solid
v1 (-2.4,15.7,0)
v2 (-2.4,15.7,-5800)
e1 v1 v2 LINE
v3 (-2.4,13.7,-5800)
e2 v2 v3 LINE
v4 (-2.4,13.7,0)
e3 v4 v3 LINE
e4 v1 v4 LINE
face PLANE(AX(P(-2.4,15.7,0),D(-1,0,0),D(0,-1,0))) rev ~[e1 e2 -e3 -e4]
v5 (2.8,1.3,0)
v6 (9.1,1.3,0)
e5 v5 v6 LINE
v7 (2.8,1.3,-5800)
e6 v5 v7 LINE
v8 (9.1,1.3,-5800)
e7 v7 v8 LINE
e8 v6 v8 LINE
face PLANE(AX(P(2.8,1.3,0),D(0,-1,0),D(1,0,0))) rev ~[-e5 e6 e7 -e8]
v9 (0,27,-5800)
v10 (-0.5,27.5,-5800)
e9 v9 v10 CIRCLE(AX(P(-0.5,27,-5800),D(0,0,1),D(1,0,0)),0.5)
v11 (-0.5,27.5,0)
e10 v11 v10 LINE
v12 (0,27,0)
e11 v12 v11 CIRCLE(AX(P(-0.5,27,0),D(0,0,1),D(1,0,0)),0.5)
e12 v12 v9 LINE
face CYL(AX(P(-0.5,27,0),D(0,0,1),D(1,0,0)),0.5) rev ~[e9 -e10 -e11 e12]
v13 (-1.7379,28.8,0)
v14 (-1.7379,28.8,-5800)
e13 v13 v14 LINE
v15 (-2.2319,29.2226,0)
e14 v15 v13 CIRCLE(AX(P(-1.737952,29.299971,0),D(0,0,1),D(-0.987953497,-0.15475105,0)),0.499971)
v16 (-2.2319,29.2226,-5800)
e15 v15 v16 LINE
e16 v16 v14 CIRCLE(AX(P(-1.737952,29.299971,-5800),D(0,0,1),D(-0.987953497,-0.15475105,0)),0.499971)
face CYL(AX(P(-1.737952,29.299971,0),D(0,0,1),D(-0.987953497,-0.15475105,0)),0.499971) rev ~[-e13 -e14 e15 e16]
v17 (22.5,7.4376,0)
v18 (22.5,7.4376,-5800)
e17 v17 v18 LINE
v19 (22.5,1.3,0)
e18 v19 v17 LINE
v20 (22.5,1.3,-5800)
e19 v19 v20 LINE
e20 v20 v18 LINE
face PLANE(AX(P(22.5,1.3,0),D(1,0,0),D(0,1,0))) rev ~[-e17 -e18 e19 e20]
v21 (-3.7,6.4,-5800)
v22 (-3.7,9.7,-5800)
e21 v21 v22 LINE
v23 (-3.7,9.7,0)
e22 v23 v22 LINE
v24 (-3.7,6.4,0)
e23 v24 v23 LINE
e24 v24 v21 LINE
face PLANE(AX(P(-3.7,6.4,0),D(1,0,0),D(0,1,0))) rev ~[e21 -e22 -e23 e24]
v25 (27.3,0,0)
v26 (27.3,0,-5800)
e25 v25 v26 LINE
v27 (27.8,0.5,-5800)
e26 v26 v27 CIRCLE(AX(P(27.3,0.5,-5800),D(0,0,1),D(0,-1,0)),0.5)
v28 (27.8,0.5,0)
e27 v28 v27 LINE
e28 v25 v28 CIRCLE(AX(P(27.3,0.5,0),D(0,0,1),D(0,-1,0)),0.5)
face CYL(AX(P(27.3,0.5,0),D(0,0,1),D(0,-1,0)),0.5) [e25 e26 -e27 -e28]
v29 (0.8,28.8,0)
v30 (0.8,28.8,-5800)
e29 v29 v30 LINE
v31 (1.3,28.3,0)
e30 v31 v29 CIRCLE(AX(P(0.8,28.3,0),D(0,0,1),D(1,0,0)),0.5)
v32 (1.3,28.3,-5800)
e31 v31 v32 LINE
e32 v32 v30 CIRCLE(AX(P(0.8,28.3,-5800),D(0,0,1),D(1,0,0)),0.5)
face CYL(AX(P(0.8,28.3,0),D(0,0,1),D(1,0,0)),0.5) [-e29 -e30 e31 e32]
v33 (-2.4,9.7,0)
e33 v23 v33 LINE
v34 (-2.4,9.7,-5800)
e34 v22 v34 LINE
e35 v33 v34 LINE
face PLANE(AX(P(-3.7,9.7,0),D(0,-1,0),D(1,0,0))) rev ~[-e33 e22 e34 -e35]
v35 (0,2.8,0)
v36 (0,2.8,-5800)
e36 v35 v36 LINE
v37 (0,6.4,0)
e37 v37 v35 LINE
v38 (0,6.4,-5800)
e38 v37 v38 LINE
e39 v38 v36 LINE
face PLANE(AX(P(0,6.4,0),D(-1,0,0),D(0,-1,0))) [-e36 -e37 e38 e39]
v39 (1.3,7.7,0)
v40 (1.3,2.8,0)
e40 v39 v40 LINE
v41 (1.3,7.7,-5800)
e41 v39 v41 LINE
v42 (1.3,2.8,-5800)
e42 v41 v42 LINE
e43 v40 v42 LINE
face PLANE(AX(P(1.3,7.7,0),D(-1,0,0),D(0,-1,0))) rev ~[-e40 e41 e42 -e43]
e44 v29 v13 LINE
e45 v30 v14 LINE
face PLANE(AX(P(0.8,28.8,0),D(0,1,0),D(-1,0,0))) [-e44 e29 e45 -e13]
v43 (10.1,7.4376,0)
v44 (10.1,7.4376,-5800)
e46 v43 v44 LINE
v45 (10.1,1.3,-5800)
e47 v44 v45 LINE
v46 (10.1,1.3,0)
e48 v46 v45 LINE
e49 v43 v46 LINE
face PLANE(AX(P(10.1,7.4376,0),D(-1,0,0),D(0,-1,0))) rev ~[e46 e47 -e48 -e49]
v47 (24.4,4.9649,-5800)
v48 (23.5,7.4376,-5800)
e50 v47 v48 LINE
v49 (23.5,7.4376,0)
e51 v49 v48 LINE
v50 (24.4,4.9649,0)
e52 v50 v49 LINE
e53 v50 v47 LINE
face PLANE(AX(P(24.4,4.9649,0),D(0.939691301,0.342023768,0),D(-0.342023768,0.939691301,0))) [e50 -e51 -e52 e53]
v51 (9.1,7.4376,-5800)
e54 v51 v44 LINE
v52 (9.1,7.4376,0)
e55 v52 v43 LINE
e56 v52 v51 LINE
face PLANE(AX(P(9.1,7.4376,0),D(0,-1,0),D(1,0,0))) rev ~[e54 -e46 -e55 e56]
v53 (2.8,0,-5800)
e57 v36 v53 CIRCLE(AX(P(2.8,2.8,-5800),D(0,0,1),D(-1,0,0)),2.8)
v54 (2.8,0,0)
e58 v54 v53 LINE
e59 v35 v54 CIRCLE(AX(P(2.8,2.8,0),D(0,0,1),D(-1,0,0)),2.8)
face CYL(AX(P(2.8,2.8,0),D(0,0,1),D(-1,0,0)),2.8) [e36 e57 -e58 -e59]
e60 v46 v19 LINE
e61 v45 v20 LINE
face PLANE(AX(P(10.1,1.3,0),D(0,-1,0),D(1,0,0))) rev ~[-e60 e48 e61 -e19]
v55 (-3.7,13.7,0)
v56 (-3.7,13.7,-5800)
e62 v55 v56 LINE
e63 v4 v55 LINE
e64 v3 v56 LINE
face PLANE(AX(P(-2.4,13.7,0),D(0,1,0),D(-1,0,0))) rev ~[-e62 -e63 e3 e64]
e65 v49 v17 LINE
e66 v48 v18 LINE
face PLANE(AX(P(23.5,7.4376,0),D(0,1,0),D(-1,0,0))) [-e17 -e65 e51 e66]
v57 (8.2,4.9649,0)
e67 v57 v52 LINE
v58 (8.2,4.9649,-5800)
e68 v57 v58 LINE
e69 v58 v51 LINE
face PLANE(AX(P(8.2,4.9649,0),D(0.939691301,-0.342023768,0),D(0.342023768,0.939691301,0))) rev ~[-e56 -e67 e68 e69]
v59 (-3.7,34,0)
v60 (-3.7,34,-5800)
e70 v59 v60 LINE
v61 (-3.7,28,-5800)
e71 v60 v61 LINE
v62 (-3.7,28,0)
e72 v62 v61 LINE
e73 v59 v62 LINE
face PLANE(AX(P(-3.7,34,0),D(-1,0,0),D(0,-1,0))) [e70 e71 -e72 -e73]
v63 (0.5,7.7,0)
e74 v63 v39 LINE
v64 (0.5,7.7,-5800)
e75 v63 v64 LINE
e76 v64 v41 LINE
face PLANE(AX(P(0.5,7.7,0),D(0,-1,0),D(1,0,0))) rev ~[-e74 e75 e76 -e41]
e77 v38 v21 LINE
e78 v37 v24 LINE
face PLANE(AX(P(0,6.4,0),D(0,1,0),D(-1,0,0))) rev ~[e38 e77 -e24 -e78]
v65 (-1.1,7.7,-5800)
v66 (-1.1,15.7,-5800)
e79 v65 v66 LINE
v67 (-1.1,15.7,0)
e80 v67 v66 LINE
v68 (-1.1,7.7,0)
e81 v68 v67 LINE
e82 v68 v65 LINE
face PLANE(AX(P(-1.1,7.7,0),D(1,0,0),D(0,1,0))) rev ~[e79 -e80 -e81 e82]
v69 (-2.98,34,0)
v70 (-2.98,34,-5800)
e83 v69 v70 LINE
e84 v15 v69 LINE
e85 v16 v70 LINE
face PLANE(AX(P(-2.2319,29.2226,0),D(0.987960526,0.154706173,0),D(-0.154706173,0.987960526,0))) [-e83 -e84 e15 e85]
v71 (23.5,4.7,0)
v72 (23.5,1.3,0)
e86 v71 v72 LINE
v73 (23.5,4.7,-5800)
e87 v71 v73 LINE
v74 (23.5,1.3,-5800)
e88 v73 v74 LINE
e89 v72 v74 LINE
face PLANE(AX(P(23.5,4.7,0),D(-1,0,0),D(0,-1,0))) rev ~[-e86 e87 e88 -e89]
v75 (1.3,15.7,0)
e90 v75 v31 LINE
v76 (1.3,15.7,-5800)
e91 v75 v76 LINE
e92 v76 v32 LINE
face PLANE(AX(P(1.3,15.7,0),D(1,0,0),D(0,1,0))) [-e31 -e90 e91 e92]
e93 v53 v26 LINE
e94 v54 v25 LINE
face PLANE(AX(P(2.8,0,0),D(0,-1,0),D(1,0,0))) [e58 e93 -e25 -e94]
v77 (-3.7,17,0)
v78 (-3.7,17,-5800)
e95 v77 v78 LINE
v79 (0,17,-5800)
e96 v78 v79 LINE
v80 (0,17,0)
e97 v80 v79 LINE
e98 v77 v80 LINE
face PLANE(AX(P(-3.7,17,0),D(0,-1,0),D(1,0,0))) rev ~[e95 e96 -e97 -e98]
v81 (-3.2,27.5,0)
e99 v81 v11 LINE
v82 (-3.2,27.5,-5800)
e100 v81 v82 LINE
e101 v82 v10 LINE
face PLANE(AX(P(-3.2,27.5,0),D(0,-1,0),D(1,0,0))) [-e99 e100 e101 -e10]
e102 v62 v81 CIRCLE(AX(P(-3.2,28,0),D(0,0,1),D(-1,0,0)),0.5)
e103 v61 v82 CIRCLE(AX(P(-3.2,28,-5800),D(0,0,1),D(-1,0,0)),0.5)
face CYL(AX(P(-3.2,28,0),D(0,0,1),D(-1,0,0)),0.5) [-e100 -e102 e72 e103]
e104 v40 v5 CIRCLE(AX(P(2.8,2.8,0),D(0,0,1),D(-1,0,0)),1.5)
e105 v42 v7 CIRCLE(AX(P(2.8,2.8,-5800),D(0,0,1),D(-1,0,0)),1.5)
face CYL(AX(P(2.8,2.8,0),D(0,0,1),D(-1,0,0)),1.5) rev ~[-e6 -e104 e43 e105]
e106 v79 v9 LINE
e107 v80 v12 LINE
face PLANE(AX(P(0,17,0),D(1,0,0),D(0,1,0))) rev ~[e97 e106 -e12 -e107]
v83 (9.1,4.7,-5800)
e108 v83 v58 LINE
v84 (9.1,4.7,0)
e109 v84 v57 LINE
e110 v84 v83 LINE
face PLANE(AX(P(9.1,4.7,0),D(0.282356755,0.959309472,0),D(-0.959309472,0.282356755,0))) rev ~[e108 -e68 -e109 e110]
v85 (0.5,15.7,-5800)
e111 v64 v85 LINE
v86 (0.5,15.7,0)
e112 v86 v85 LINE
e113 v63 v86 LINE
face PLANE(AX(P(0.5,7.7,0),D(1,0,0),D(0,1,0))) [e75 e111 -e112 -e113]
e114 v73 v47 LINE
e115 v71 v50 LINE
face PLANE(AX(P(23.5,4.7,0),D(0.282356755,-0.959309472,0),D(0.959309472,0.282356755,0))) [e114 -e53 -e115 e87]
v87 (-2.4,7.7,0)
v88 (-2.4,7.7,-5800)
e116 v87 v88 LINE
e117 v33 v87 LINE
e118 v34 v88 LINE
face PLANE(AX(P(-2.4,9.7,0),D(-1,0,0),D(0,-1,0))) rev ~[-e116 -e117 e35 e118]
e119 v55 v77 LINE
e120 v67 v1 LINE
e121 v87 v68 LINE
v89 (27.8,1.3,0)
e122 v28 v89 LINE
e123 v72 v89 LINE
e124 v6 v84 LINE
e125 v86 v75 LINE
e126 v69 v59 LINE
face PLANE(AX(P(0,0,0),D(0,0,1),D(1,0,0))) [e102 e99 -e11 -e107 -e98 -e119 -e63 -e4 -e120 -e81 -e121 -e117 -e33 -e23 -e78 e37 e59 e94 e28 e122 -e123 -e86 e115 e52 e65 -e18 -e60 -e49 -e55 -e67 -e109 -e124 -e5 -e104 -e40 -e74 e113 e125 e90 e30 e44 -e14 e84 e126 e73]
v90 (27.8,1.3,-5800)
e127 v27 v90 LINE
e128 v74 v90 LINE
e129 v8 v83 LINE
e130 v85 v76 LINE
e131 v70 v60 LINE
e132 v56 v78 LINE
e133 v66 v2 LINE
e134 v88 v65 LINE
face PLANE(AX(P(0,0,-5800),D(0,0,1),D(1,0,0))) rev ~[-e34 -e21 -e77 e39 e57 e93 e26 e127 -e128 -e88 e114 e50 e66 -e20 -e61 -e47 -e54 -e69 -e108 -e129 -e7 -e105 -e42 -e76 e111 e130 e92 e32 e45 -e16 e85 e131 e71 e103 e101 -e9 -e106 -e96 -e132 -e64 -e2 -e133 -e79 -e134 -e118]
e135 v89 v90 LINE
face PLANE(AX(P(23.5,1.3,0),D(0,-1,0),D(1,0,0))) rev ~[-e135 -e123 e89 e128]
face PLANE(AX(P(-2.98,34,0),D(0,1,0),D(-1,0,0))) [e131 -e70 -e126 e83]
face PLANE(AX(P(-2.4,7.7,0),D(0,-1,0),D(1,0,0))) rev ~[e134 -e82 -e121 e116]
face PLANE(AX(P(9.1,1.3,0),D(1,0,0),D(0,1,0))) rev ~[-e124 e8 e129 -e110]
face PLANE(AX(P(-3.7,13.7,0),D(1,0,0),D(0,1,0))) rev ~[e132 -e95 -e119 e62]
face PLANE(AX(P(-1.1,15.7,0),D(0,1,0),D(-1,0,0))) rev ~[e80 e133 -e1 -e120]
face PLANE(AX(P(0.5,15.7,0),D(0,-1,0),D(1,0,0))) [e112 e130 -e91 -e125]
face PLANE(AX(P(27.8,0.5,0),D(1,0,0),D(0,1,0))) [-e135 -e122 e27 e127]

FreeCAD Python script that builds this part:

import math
import FreeCAD as App
import Part
import Sketcher

V = App.Vector
Q = App.Units.Quantity

doc = App.newDocument("Part")
body = doc.addObject("PartDesign::Body", "Body")

# Sketch on XY plane
sketch1 = body.newObject("Sketcher::SketchObject", "Sketch")
sketch1.AttachmentSupport = (doc.getObject("XY_Plane"), [""])
sketch1.MapMode = "FlatFace"
sketch1.addGeometry([
    Part.ArcOfCircle(Part.Circle(V(2.8, 2.8, 0), V(0, 0, 1), 2.8), math.radians(180), math.radians(270)),  # 0
    Part.LineSegment(V(2.8, 0, 0), V(27.3, 0, 0)),  # 1
    Part.ArcOfCircle(Part.Circle(V(27.3, 0.5, 0), V(0, 0, 1), 0.5), math.radians(-90), math.radians(0)),  # 2
    Part.LineSegment(V(27.8, 0.5, 0), V(27.8, 1.3, 0)),  # 3
    Part.LineSegment(V(27.8, 1.3, 0), V(23.5, 1.3, 0)),  # 4
    Part.LineSegment(V(23.5, 1.3, 0), V(23.5, 4.7, 0)),  # 5
    Part.LineSegment(V(23.5, 4.7, 0), V(24.4, 5, 0)),  # 6
    Part.LineSegment(V(24.4, 5, 0), V(23.5, 7.4, 0)),  # 7
    Part.LineSegment(V(23.5, 7.4, 0), V(22.5, 7.4, 0)),  # 8
    Part.LineSegment(V(22.5, 7.4, 0), V(22.5, 1.3, 0)),  # 9
    Part.LineSegment(V(22.5, 1.3, 0), V(10.1, 1.3, 0)),  # 10
    Part.LineSegment(V(10.1, 1.3, 0), V(10.1, 7.4, 0)),  # 11
    Part.LineSegment(V(10.1, 7.4, 0), V(9.1, 7.4, 0)),  # 12
    Part.LineSegment(V(9.1, 7.4, 0), V(8.2, 5, 0)),  # 13
    Part.LineSegment(V(8.2, 5, 0), V(9.1, 4.7, 0)),  # 14
    Part.LineSegment(V(9.1, 4.7, 0), V(9.1, 1.3, 0)),  # 15
    Part.LineSegment(V(9.1, 1.3, 0), V(2.8, 1.3, 0)),  # 16
    Part.ArcOfCircle(Part.Circle(V(2.8, 2.8, 0), V(0, 0, 1), 1.5), math.radians(180), math.radians(270)),  # 17
    Part.LineSegment(V(1.3, 2.8, 0), V(1.3, 7.7, 0)),  # 18
    Part.LineSegment(V(1.3, 7.7, 0), V(0.5, 7.7, 0)),  # 19
    Part.LineSegment(V(0.5, 7.7, 0), V(0.5, 15.7, 0)),  # 20
    Part.LineSegment(V(0.5, 15.7, 0), V(1.3, 15.7, 0)),  # 21
    Part.LineSegment(V(1.3, 15.7, 0), V(1.3, 28.3, 0)),  # 22
    Part.ArcOfCircle(Part.Circle(V(0.8, 28.3, 0), V(0, 0, 1), 0.5), math.radians(0), math.radians(90)),  # 23
    Part.LineSegment(V(0.8, 28.8, 0), V(-1.7, 28.8, 0)),  # 24
    Part.ArcOfCircle(Part.Circle(V(-1.7, 29.3, 0), V(0, 0, 1), 0.5), math.radians(-171), math.radians(-90)),  # 25
    Part.LineSegment(V(-2.2, 29.2, 0), V(-3, 34, 0)),  # 26
    Part.LineSegment(V(-3, 34, 0), V(-3.7, 34, 0)),  # 27
    Part.LineSegment(V(-3.7, 34, 0), V(-3.7, 28, 0)),  # 28
    Part.ArcOfCircle(Part.Circle(V(-3.2, 28, 0), V(0, 0, 1), 0.5), math.radians(180), math.radians(270)),  # 29
    Part.LineSegment(V(-3.2, 27.5, 0), V(-0.5, 27.5, 0)),  # 30
    Part.ArcOfCircle(Part.Circle(V(-0.5, 27, 0), V(0, 0, 1), 0.5), math.radians(0), math.radians(90)),  # 31
    Part.LineSegment(V(0, 27, 0), V(0, 17, 0)),  # 32
    Part.LineSegment(V(0, 17, 0), V(-3.7, 17, 0)),  # 33
    Part.LineSegment(V(-3.7, 17, 0), V(-3.7, 13.7, 0)),  # 34
    Part.LineSegment(V(-3.7, 13.7, 0), V(-2.4, 13.7, 0)),  # 35
    Part.LineSegment(V(-2.4, 13.7, 0), V(-2.4, 15.7, 0)),  # 36
    Part.LineSegment(V(-2.4, 15.7, 0), V(-1.1, 15.7, 0)),  # 37
    Part.LineSegment(V(-1.1, 15.7, 0), V(-1.1, 7.7, 0)),  # 38
    Part.LineSegment(V(-1.1, 7.7, 0), V(-2.4, 7.7, 0)),  # 39
    Part.LineSegment(V(-2.4, 7.7, 0), V(-2.4, 9.7, 0)),  # 40
    Part.LineSegment(V(-2.4, 9.7, 0), V(-3.7, 9.7, 0)),  # 41
    Part.LineSegment(V(-3.7, 9.7, 0), V(-3.7, 6.4, 0)),  # 42
    Part.LineSegment(V(-3.7, 6.4, 0), V(0, 6.4, 0)),  # 43
    Part.LineSegment(V(0, 6.4, 0), V(0, 2.8, 0)),  # 44
], False)
sketch1.addConstraint([
    Sketcher.Constraint("Tangent", 0, 2, 1, 1),
    Sketcher.Constraint("Tangent", 1, 2, 2, 1),
    Sketcher.Constraint("Tangent", 2, 2, 3, 1),
    Sketcher.Constraint("Coincident", 3, 2, 4, 1),
    Sketcher.Constraint("Coincident", 4, 2, 5, 1),
    Sketcher.Constraint("Coincident", 5, 2, 6, 1),
    Sketcher.Constraint("Coincident", 6, 2, 7, 1),
    Sketcher.Constraint("Coincident", 7, 2, 8, 1),
    Sketcher.Constraint("Coincident", 8, 2, 9, 1),
    Sketcher.Constraint("Coincident", 9, 2, 10, 1),
    Sketcher.Constraint("Coincident", 10, 2, 11, 1),
    Sketcher.Constraint("Coincident", 11, 2, 12, 1),
    Sketcher.Constraint("Coincident", 12, 2, 13, 1),
    Sketcher.Constraint("Coincident", 13, 2, 14, 1),
    Sketcher.Constraint("Coincident", 14, 2, 15, 1),
    Sketcher.Constraint("Coincident", 15, 2, 16, 1),
    Sketcher.Constraint("Tangent", 16, 2, 17, 2),
    Sketcher.Constraint("Tangent", 17, 1, 18, 1),
    Sketcher.Constraint("Coincident", 18, 2, 19, 1),
    Sketcher.Constraint("Coincident", 19, 2, 20, 1),
    Sketcher.Constraint("Coincident", 20, 2, 21, 1),
    Sketcher.Constraint("Coincident", 21, 2, 22, 1),
    Sketcher.Constraint("Tangent", 22, 2, 23, 1),
    Sketcher.Constraint("Tangent", 23, 2, 24, 1),
    Sketcher.Constraint("Tangent", 24, 2, 25, 2),
    Sketcher.Constraint("Tangent", 25, 1, 26, 1),
    Sketcher.Constraint("Coincident", 26, 2, 27, 1),
    Sketcher.Constraint("Coincident", 27, 2, 28, 1),
    Sketcher.Constraint("Tangent", 28, 2, 29, 1),
    Sketcher.Constraint("Tangent", 29, 2, 30, 1),
    Sketcher.Constraint("Tangent", 30, 2, 31, 2),
    Sketcher.Constraint("Tangent", 31, 1, 32, 1),
    Sketcher.Constraint("Coincident", 32, 2, 33, 1),
    Sketcher.Constraint("Coincident", 33, 2, 34, 1),
    Sketcher.Constraint("Coincident", 34, 2, 35, 1),
    Sketcher.Constraint("Coincident", 35, 2, 36, 1),
    Sketcher.Constraint("Coincident", 36, 2, 37, 1),
    Sketcher.Constraint("Coincident", 37, 2, 38, 1),
    Sketcher.Constraint("Coincident", 38, 2, 39, 1),
    Sketcher.Constraint("Coincident", 39, 2, 40, 1),
    Sketcher.Constraint("Coincident", 40, 2, 41, 1),
    Sketcher.Constraint("Coincident", 41, 2, 42, 1),
    Sketcher.Constraint("Coincident", 42, 2, 43, 1),
    Sketcher.Constraint("Coincident", 43, 2, 44, 1),
    Sketcher.Constraint("Tangent", 44, 2, 0, 1),
    Sketcher.Constraint("Horizontal", 1),
    Sketcher.Constraint("Vertical", 3),
    Sketcher.Constraint("Horizontal", 4),
    Sketcher.Constraint("Vertical", 5),
    Sketcher.Constraint("Horizontal", 8),
    Sketcher.Constraint("Vertical", 9),
    Sketcher.Constraint("Horizontal", 10),
    Sketcher.Constraint("Vertical", 11),
    Sketcher.Constraint("Horizontal", 12),
    Sketcher.Constraint("Vertical", 15),
    Sketcher.Constraint("Horizontal", 16),
    Sketcher.Constraint("Vertical", 18),
    Sketcher.Constraint("Horizontal", 19),
    Sketcher.Constraint("Vertical", 20),
    Sketcher.Constraint("Horizontal", 21),
    Sketcher.Constraint("Vertical", 22),
    Sketcher.Constraint("Horizontal", 24),
    Sketcher.Constraint("Horizontal", 27),
    Sketcher.Constraint("Vertical", 28),
    Sketcher.Constraint("Horizontal", 30),
    Sketcher.Constraint("Vertical", 32),
    Sketcher.Constraint("Horizontal", 33),
    Sketcher.Constraint("Vertical", 34),
    Sketcher.Constraint("Horizontal", 35),
    Sketcher.Constraint("Vertical", 36),
    Sketcher.Constraint("Horizontal", 37),
    Sketcher.Constraint("Vertical", 38),
    Sketcher.Constraint("Horizontal", 39),
    Sketcher.Constraint("Vertical", 40),
    Sketcher.Constraint("Horizontal", 41),
    Sketcher.Constraint("Vertical", 42),
    Sketcher.Constraint("Horizontal", 43),
    Sketcher.Constraint("Vertical", 44),
    Sketcher.Constraint("Coincident", 17, 3, 0, 3),
    Sketcher.Constraint("Equal", 2, 23),
    Sketcher.Constraint("Equal", 23, 25),
    Sketcher.Constraint("Equal", 25, 29),
    Sketcher.Constraint("Equal", 29, 31),
    Sketcher.Constraint("PointOnObject", 0, 2, -1),
    Sketcher.Constraint("PointOnObject", 31, 1, -2),
    Sketcher.Constraint("PointOnObject", 43, 2, -2),
    Sketcher.Constraint("Horizontal", 4, 2, 9, 2),
    Sketcher.Constraint("Horizontal", 8, 2, 11, 2),
    Sketcher.Constraint("Horizontal", 6, 2, 13, 2),
    Sketcher.Constraint("Horizontal", 5, 2, 14, 2),
    Sketcher.Constraint("Horizontal", 10, 2, 15, 2),
    Sketcher.Constraint("Horizontal", 21, 2, 36, 2),
    Sketcher.Constraint("Horizontal", 19, 2, 38, 2),
    Sketcher.Constraint("Vertical", 5, 2, 7, 2),
    Sketcher.Constraint("Vertical", 12, 2, 14, 2),
    Sketcher.Constraint("Vertical", 18, 2, 21, 2),
    Sketcher.Constraint("Vertical", 28, 2, 33, 2),
    Sketcher.Constraint("Vertical", 36, 2, 39, 2),
    Sketcher.Constraint("Vertical", 34, 2, 41, 2),
    Sketcher.Constraint("Equal", 8, 12),
    Sketcher.Constraint("Equal", 35, 37),
    Sketcher.Constraint("Equal", 21, 3),
    Sketcher.Constraint("Equal", 36, 40),
    Sketcher.Constraint("Equal", 34, 42),
    Sketcher.Constraint("Equal", 7, 13),
    Sketcher.Constraint("Radius", 0, 2.8),
    Sketcher.Constraint("Radius", 2, 0.5),
    Sketcher.Constraint("Radius", 17, 1.5),
    Sketcher.Constraint("DistanceX", 8, 2, 8, 1, 1.0),
    Sketcher.Constraint("DistanceY", 20, 1, 20, 2, 8.0),
    Sketcher.Constraint("DistanceY", 36, 1, 36, 2, 2.0),
    Sketcher.Constraint("DistanceX", 4, 2, 4, 1, 4.3),
    Sketcher.Constraint("DistanceX", 35, 1, 35, 2, 1.3),
    Sketcher.Constraint("DistanceY", 5, 1, 5, 2, 3.4),
    Sketcher.Constraint("DistanceY", -1, 1, 26, 2, 34.0),
    Sketcher.Constraint("Angle", 26, Q("98.8998 deg")),
    Sketcher.Constraint("DistanceX", 29, 3, 23, 3, 4.0),
    Sketcher.Constraint("DistanceX", 27, 2, 27, 1, 0.72),
    Sketcher.Constraint("DistanceY", -1, 1, 42, 2, 6.4),
    Sketcher.Constraint("DistanceY", 29, 3, 25, 3, 1.3),
    Sketcher.Constraint("DistanceX", 5, 2, 6, 2, 0.9),
    Sketcher.Constraint("DistanceY", 16, 2, 18, 2, 6.4),
    Sketcher.Constraint("DistanceX", 21, 2, 12, 2, 7.8),
    Sketcher.Constraint("DistanceY", 28, 2, 28, 1, 6.0),
    Sketcher.Constraint("Angle", 7, Q("110.0002 deg")),
    Sketcher.Constraint("DistanceX", 1, 1, 1, 2, 24.5),
    Sketcher.Constraint("Angle", 6, Q("16.401 deg")),
])
pad1 = body.newObject("PartDesign::Pad", "Pad")
pad1.Profile = sketch1
pad1.Length = 5800
pad1.Reversed = True

doc.recompute()
